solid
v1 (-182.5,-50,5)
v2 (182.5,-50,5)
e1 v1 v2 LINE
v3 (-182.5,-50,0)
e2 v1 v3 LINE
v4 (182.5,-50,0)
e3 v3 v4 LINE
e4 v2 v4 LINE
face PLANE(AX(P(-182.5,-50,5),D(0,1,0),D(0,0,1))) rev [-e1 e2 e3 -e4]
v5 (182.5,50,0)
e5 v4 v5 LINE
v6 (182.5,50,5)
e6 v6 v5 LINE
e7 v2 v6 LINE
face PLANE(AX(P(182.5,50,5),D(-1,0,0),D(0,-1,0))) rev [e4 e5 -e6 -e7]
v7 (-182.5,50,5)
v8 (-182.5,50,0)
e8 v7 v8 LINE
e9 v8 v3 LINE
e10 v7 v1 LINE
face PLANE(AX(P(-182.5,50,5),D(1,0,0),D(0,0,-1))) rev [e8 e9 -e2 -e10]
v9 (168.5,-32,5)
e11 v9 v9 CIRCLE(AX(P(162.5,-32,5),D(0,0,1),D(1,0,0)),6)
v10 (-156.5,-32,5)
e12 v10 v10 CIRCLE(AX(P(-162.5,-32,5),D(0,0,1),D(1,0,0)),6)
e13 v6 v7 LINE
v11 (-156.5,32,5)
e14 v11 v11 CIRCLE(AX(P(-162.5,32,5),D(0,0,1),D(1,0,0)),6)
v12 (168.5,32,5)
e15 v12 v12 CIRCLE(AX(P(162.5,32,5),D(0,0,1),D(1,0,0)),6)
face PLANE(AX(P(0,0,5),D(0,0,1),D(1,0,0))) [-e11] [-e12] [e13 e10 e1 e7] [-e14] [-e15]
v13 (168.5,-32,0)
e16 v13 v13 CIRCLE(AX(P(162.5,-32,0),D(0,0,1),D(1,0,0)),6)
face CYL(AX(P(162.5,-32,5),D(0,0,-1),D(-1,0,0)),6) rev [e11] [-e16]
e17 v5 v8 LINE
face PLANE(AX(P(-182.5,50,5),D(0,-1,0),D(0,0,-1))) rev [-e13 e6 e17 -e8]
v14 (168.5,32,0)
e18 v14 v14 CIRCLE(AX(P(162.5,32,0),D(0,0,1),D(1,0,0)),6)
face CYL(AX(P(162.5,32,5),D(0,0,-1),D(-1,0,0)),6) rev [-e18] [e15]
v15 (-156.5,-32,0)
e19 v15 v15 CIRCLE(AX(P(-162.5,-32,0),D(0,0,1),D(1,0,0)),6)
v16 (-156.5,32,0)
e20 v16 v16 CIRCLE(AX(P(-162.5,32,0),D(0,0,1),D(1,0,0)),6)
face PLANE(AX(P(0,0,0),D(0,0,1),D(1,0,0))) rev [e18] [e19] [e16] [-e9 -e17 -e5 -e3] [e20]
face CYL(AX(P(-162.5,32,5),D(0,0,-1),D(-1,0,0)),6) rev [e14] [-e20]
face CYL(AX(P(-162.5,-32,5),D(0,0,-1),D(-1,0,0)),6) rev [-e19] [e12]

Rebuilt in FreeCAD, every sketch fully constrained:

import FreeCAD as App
import Part
import Sketcher
from FreeCAD import Vector

doc = App.newDocument("Part")
body = doc.addObject("PartDesign::Body", "Body")

# Sketch on XY plane
sketch1 = body.newObject("Sketcher::SketchObject", "Sketch")
sketch1.AttachmentSupport = (doc.getObject("XY_Plane"), [""])
sketch1.MapMode = "FlatFace"
sketch1.addGeometry(Part.LineSegment(Vector(-182, 50, 0), Vector(-182, -50, 0)), False)
sketch1.addGeometry(Part.LineSegment(Vector(-182, -50, 0), Vector(182, -50, 0)), False)
sketch1.addGeometry(Part.LineSegment(Vector(182, -50, 0), Vector(182, 50, 0)), False)
sketch1.addGeometry(Part.LineSegment(Vector(182, 50, 0), Vector(-182, 50, 0)), False)
sketch1.addGeometry(Part.Circle(Vector(-162, -32, 0), Vector(0, 0, 1), 6), False)
sketch1.addGeometry(Part.Circle(Vector(162, -32, 0), Vector(0, 0, 1), 6), False)
sketch1.addGeometry(Part.Circle(Vector(-162, 32, 0), Vector(0, 0, 1), 6), False)
sketch1.addGeometry(Part.Circle(Vector(162, 32, 0), Vector(0, 0, 1), 6), False)
sketch1.addConstraint(Sketcher.Constraint("Coincident", 0, 2, 1, 1))
sketch1.addConstraint(Sketcher.Constraint("Coincident", 1, 2, 2, 1))
sketch1.addConstraint(Sketcher.Constraint("Coincident", 2, 2, 3, 1))
sketch1.addConstraint(Sketcher.Constraint("Coincident", 3, 2, 0, 1))
sketch1.addConstraint(Sketcher.Constraint("Vertical", 0))
sketch1.addConstraint(Sketcher.Constraint("Horizontal", 1))
sketch1.addConstraint(Sketcher.Constraint("Vertical", 2))
sketch1.addConstraint(Sketcher.Constraint("Horizontal", 3))
sketch1.addConstraint(Sketcher.Constraint("Equal", 4, 5))
sketch1.addConstraint(Sketcher.Constraint("Equal", 5, 6))
sketch1.addConstraint(Sketcher.Constraint("Equal", 6, 7))
sketch1.addConstraint(Sketcher.Constraint("Symmetric", 5, 3, 6, 3, -1, 1))
sketch1.addConstraint(Sketcher.Constraint("Symmetric", 4, 3, 7, 3, -1, 1))
sketch1.addConstraint(Sketcher.Constraint("Symmetric", 0, 2, 2, 2, -1, 1))
sketch1.addConstraint(Sketcher.Constraint("Symmetric", 4, 3, 5, 3, -2))
sketch1.addConstraint(Sketcher.Constraint("Diameter", 4, 12.0))
sketch1.addConstraint(Sketcher.Constraint("DistanceX", 1, 1, 1, 2, 365.0))
sketch1.addConstraint(Sketcher.Constraint("DistanceY", 0, 2, 0, 1, 100.0))
sketch1.addConstraint(Sketcher.Constraint("DistanceY", 4, 3, -1, 1, 32.0))
sketch1.addConstraint(Sketcher.Constraint("DistanceX", 4, 3, 5, 3, 325.0))
pad1 = body.newObject("PartDesign::Pad", "Pad")
pad1.Profile = sketch1
pad1.Length = 5

doc.recompute()
